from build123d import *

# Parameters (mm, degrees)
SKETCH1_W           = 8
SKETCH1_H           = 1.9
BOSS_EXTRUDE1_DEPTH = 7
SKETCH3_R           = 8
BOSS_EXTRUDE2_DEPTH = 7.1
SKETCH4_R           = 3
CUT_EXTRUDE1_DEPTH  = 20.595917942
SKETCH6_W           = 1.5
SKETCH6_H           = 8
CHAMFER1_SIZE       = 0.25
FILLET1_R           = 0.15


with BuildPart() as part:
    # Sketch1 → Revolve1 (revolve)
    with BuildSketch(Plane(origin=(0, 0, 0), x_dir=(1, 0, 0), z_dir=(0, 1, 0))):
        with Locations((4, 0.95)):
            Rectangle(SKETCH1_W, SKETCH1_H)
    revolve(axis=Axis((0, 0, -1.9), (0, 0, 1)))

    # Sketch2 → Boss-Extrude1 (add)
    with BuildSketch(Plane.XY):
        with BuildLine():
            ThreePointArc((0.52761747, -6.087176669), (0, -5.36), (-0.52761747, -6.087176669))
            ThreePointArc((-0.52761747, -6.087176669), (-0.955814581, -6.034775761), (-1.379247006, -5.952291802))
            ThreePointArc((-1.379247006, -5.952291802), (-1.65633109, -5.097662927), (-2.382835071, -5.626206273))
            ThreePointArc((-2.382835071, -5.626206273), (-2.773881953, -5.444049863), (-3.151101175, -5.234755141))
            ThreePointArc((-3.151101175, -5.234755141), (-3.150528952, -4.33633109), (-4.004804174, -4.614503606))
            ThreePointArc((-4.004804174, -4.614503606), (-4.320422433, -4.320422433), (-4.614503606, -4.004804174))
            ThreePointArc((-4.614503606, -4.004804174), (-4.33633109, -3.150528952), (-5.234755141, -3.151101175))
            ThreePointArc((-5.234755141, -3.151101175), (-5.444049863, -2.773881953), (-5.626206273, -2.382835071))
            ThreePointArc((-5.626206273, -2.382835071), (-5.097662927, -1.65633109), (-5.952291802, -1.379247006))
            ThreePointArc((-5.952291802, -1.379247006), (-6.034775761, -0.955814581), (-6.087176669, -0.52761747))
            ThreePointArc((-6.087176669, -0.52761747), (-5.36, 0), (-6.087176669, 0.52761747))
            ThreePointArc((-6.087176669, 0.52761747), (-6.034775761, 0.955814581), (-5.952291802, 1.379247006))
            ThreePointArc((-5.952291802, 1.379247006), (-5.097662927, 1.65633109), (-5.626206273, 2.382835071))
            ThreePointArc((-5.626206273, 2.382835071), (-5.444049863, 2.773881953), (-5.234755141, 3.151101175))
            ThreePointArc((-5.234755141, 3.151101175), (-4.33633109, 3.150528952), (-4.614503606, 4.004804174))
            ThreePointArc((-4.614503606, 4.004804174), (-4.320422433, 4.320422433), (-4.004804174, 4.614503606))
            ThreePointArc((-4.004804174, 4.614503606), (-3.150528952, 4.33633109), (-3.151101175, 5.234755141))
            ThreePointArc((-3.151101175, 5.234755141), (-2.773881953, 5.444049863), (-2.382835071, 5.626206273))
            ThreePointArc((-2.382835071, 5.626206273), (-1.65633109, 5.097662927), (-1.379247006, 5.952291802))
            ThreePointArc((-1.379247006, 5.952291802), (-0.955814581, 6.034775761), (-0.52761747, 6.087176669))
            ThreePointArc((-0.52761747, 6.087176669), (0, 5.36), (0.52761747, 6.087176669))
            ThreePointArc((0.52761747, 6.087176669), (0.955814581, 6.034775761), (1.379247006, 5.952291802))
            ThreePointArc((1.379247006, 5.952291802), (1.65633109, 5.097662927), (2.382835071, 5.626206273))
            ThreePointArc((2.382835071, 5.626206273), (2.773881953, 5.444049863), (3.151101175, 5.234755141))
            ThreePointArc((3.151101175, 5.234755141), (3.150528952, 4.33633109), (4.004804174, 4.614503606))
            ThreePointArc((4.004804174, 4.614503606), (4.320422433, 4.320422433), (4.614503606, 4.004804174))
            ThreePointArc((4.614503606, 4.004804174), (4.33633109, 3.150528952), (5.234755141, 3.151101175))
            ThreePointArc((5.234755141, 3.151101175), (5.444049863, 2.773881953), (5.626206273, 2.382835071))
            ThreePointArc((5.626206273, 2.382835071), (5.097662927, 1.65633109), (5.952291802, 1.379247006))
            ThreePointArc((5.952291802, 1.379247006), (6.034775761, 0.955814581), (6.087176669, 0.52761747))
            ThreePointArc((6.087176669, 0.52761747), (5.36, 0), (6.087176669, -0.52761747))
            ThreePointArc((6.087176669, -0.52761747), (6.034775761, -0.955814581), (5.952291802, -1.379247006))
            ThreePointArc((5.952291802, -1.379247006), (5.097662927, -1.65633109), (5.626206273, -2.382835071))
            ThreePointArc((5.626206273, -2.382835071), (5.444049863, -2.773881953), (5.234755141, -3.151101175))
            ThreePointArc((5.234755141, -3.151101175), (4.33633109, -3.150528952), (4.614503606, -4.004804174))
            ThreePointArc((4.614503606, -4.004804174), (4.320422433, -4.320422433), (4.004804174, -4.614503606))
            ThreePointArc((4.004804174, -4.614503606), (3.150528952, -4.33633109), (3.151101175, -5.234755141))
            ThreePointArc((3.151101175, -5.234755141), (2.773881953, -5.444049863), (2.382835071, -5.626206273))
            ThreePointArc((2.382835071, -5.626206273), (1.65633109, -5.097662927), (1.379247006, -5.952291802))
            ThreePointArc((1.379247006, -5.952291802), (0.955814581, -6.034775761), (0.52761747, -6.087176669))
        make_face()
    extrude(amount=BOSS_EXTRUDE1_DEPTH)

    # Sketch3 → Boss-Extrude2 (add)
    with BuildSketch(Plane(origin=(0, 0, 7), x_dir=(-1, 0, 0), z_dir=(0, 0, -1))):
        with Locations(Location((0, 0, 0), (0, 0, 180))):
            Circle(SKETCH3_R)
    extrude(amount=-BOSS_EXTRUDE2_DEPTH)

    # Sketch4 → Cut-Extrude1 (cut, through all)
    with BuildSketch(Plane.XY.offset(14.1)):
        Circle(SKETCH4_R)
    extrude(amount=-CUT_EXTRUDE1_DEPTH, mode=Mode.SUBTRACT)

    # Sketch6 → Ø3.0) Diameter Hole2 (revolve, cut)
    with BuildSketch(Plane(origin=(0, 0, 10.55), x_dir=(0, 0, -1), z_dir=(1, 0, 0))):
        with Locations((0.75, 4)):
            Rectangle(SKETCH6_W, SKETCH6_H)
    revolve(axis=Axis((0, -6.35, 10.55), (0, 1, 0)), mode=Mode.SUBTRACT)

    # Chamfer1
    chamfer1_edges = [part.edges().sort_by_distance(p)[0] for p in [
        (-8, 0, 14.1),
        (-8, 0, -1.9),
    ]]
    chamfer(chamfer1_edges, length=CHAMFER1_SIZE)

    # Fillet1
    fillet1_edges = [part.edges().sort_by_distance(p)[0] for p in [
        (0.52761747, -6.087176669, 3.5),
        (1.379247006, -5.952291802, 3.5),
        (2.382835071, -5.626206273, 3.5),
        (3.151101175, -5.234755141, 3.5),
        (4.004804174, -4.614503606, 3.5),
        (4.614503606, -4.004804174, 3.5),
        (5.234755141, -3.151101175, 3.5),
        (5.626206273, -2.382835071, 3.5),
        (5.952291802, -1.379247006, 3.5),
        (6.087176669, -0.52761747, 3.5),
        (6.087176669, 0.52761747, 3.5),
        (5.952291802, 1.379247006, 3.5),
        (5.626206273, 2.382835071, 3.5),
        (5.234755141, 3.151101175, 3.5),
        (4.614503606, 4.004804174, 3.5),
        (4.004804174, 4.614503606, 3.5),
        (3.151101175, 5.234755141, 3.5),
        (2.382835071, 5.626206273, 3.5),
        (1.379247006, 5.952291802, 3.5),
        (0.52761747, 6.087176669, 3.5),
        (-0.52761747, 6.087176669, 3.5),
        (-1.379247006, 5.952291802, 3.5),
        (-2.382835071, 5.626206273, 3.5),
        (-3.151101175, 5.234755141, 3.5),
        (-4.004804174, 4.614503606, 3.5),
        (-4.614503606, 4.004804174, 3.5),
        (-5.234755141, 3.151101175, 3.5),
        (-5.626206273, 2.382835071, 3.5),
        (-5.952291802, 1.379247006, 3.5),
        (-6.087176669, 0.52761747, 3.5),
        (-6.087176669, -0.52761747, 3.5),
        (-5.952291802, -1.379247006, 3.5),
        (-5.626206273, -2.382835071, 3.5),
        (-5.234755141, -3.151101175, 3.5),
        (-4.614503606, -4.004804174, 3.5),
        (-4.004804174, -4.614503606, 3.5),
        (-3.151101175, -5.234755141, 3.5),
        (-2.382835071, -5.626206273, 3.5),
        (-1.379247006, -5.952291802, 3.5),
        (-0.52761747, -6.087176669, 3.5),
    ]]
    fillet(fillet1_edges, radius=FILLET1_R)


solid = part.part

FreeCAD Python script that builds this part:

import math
import FreeCAD as App
import Part
import Sketcher
from FreeCAD import Vector
Q = App.Units.Quantity


def edges_at(feature, points):
    """Names of the edges that pass closest to the given points."""
    edges = feature.Shape.Edges
    near = lambda p: min(range(len(edges)), key=lambda i: edges[i].distToShape(Part.Vertex(*p))[0])
    return sorted({f"Edge{near(p) + 1}" for p in points})


def add_polygon(sketch, points):
    """Adds a closed chain of lines whose ends are joined by coincident constraints."""
    first, n = sketch.GeometryCount, len(points)
    for a, b in zip(points, points[1:] + points[:1]):
        sketch.addGeometry(Part.LineSegment(App.Vector(*a, 0), App.Vector(*b, 0)), False)
    for i in range(n):
        sketch.addConstraint(Sketcher.Constraint("Coincident", first + i, 2, first + (i + 1) % n, 1))

doc = App.newDocument("Part")
body = doc.addObject("PartDesign::Body", "Body")

# Sketch on XZ plane
sketch1 = body.newObject("Sketcher::SketchObject", "Sketch")
sketch1.AttachmentSupport = (doc.getObject("XZ_Plane"), [""])
sketch1.MapMode = "FlatFace"
add_polygon(sketch1, [(0, -1.9), (0, 0), (8, 0), (8, -1.9)])  # lines 0-3
sketch1.addConstraint([
    Sketcher.Constraint("Vertical", 0),
    Sketcher.Constraint("Horizontal", 1),
    Sketcher.Constraint("Vertical", 2),
    Sketcher.Constraint("Horizontal", 3),
    Sketcher.Constraint("Coincident", 0, 2, -1, 1),
    Sketcher.Constraint("DistanceX", 1, 1, 1, 2, Q("8 mm")),
    Sketcher.Constraint("DistanceY", 0, 1, 0, 2, Q("1.9 mm")),
])
revolution = body.newObject("PartDesign::Revolution", "Revolution")
revolution.Profile = sketch1
revolution.ReferenceAxis = (sketch1, ["V_Axis"])
revolution.Angle = 360

# Sketch on XY plane
sketch2 = body.newObject("Sketcher::SketchObject", "Sketch001")
sketch2.AttachmentSupport = (doc.getObject("XY_Plane"), [""])
sketch2.MapMode = "FlatFace"
sketch2.addGeometry([
    Part.ArcOfCircle(Part.Circle(Vector(0, -5.915, 0), Vector(0, 0, 1), 0.555), math.radians(-18.072985), math.radians(198.072985)),  # 0
    Part.ArcOfCircle(Part.Circle(Vector(0, 0, 0), Vector(0, 0, 1), 6.11), math.radians(-85.046162), math.radians(-76.953838)),  # 1
    Part.ArcOfCircle(Part.Circle(Vector(1.827836, -5.625499, 0), Vector(0, 0, 1), 0.555), math.radians(-0.072985), math.radians(216.072985)),  # 2
    Part.ArcOfCircle(Part.Circle(Vector(0, 0, 0), Vector(0, 0, 1), 6.11), math.radians(-67.046162), math.radians(-58.953838)),  # 3
    Part.ArcOfCircle(Part.Circle(Vector(3.47675, -4.785336, 0), Vector(0, 0, 1), 0.555), math.radians(17.927015), math.radians(234.072985)),  # 4
    Part.ArcOfCircle(Part.Circle(Vector(0, 0, 0), Vector(0, 0, 1), 6.11), math.radians(-49.046162), math.radians(-40.953838)),  # 5
    Part.ArcOfCircle(Part.Circle(Vector(4.785336, -3.47675, 0), Vector(0, 0, 1), 0.555), math.radians(35.927015), math.radians(252.072985)),  # 6
    Part.ArcOfCircle(Part.Circle(Vector(0, 0, 0), Vector(0, 0, 1), 6.11), math.radians(-31.046162), math.radians(-22.953838)),  # 7
    Part.ArcOfCircle(Part.Circle(Vector(5.625499, -1.827836, 0), Vector(0, 0, 1), 0.555), math.radians(53.927015), math.radians(270.072985)),  # 8
    Part.ArcOfCircle(Part.Circle(Vector(0, 0, 0), Vector(0, 0, 1), 6.11), math.radians(-13.046162), math.radians(-4.953838)),  # 9
    Part.ArcOfCircle(Part.Circle(Vector(5.915, 0, 0), Vector(0, 0, 1), 0.555), math.radians(71.927015), math.radians(288.072985)),  # 10
    Part.ArcOfCircle(Part.Circle(Vector(0, 0, 0), Vector(0, 0, 1), 6.11), math.radians(4.953838), math.radians(13.046162)),  # 11
    Part.ArcOfCircle(Part.Circle(Vector(5.625499, 1.827836, 0), Vector(0, 0, 1), 0.555), math.radians(89.927015), math.radians(306.072985)),  # 12
    Part.ArcOfCircle(Part.Circle(Vector(0, 0, 0), Vector(0, 0, 1), 6.11), math.radians(22.953838), math.radians(31.046162)),  # 13
    Part.ArcOfCircle(Part.Circle(Vector(4.785336, 3.47675, 0), Vector(0, 0, 1), 0.555), math.radians(107.927015), math.radians(324.072985)),  # 14
    Part.ArcOfCircle(Part.Circle(Vector(0, 0, 0), Vector(0, 0, 1), 6.11), math.radians(40.953838), math.radians(49.046162)),  # 15
    Part.ArcOfCircle(Part.Circle(Vector(3.47675, 4.785336, 0), Vector(0, 0, 1), 0.555), math.radians(125.927015), math.radians(342.072985)),  # 16
    Part.ArcOfCircle(Part.Circle(Vector(0, 0, 0), Vector(0, 0, 1), 6.11), math.radians(58.953838), math.radians(67.046162)),  # 17
    Part.ArcOfCircle(Part.Circle(Vector(1.827836, 5.625499, 0), Vector(0, 0, 1), 0.555), math.radians(143.927015), math.radians(360.072985)),  # 18
    Part.ArcOfCircle(Part.Circle(Vector(0, 0, 0), Vector(0, 0, 1), 6.11), math.radians(76.953838), math.radians(85.046162)),  # 19
    Part.ArcOfCircle(Part.Circle(Vector(0, 5.915, 0), Vector(0, 0, 1), 0.555), math.radians(161.927015), math.radians(378.072985)),  # 20
    Part.ArcOfCircle(Part.Circle(Vector(0, 0, 0), Vector(0, 0, 1), 6.11), math.radians(94.953838), math.radians(103.046162)),  # 21
    Part.ArcOfCircle(Part.Circle(Vector(-1.827836, 5.625499, 0), Vector(0, 0, 1), 0.555), math.radians(179.927015), math.radians(396.072985)),  # 22
    Part.ArcOfCircle(Part.Circle(Vector(0, 0, 0), Vector(0, 0, 1), 6.11), math.radians(112.953838), math.radians(121.046162)),  # 23
    Part.ArcOfCircle(Part.Circle(Vector(-3.47675, 4.785336, 0), Vector(0, 0, 1), 0.555), math.radians(-162.072985), math.radians(54.072985)),  # 24
    Part.ArcOfCircle(Part.Circle(Vector(0, 0, 0), Vector(0, 0, 1), 6.11), math.radians(130.953838), math.radians(139.046162)),  # 25
    Part.ArcOfCircle(Part.Circle(Vector(-4.785336, 3.47675, 0), Vector(0, 0, 1), 0.555), math.radians(-144.072985), math.radians(72.072985)),  # 26
    Part.ArcOfCircle(Part.Circle(Vector(0, 0, 0), Vector(0, 0, 1), 6.11), math.radians(148.953838), math.radians(157.046162)),  # 27
    Part.ArcOfCircle(Part.Circle(Vector(-5.625499, 1.827836, 0), Vector(0, 0, 1), 0.555), math.radians(-126.072985), math.radians(90.072985)),  # 28
    Part.ArcOfCircle(Part.Circle(Vector(0, 0, 0), Vector(0, 0, 1), 6.11), math.radians(166.953838), math.radians(175.046162)),  # 29
    Part.ArcOfCircle(Part.Circle(Vector(-5.915, 0, 0), Vector(0, 0, 1), 0.555), math.radians(-108.072985), math.radians(108.072985)),  # 30
    Part.ArcOfCircle(Part.Circle(Vector(0, 0, 0), Vector(0, 0, 1), 6.11), math.radians(-175.046162), math.radians(-166.953838)),  # 31
    Part.ArcOfCircle(Part.Circle(Vector(-5.625499, -1.827836, 0), Vector(0, 0, 1), 0.555), math.radians(-90.072985), math.radians(126.072985)),  # 32
    Part.ArcOfCircle(Part.Circle(Vector(0, 0, 0), Vector(0, 0, 1), 6.11), math.radians(-157.046162), math.radians(-148.953838)),  # 33
    Part.ArcOfCircle(Part.Circle(Vector(-4.785336, -3.47675, 0), Vector(0, 0, 1), 0.555), math.radians(-72.072985), math.radians(144.072985)),  # 34
    Part.ArcOfCircle(Part.Circle(Vector(0, 0, 0), Vector(0, 0, 1), 6.11), math.radians(-139.046162), math.radians(-130.953838)),  # 35
    Part.ArcOfCircle(Part.Circle(Vector(-3.47675, -4.785336, 0), Vector(0, 0, 1), 0.555), math.radians(-54.072985), math.radians(162.072985)),  # 36
    Part.ArcOfCircle(Part.Circle(Vector(0, 0, 0), Vector(0, 0, 1), 6.11), math.radians(-121.046162), math.radians(-112.953838)),  # 37
    Part.ArcOfCircle(Part.Circle(Vector(-1.827836, -5.625499, 0), Vector(0, 0, 1), 0.555), math.radians(-36.072985), math.radians(180.072985)),  # 38
    Part.ArcOfCircle(Part.Circle(Vector(0, 0, 0), Vector(0, 0, 1), 6.11), math.radians(-103.046162), math.radians(-94.953838)),  # 39
], False)
sketch2.addConstraint([
    Sketcher.Constraint("Coincident", 0, 1, 1, 1),
    Sketcher.Constraint("Coincident", 1, 2, 2, 2),
    Sketcher.Constraint("Coincident", 2, 1, 3, 1),
    Sketcher.Constraint("Coincident", 3, 2, 4, 2),
    Sketcher.Constraint("Coincident", 4, 1, 5, 1),
    Sketcher.Constraint("Coincident", 5, 2, 6, 2),
    Sketcher.Constraint("Coincident", 6, 1, 7, 1),
    Sketcher.Constraint("Coincident", 7, 2, 8, 2),
    Sketcher.Constraint("Coincident", 8, 1, 9, 1),
    Sketcher.Constraint("Coincident", 9, 2, 10, 2),
    Sketcher.Constraint("Coincident", 10, 1, 11, 1),
    Sketcher.Constraint("Coincident", 11, 2, 12, 2),
    Sketcher.Constraint("Coincident", 12, 1, 13, 1),
    Sketcher.Constraint("Coincident", 13, 2, 14, 2),
    Sketcher.Constraint("Coincident", 14, 1, 15, 1),
    Sketcher.Constraint("Coincident", 15, 2, 16, 2),
    Sketcher.Constraint("Coincident", 16, 1, 17, 1),
    Sketcher.Constraint("Coincident", 17, 2, 18, 2),
    Sketcher.Constraint("Coincident", 18, 1, 19, 1),
    Sketcher.Constraint("Coincident", 19, 2, 20, 2),
    Sketcher.Constraint("Coincident", 20, 1, 21, 1),
    Sketcher.Constraint("Coincident", 21, 2, 22, 2),
    Sketcher.Constraint("Coincident", 22, 1, 23, 1),
    Sketcher.Constraint("Coincident", 23, 2, 24, 2),
    Sketcher.Constraint("Coincident", 24, 1, 25, 1),
    Sketcher.Constraint("Coincident", 25, 2, 26, 2),
    Sketcher.Constraint("Coincident", 26, 1, 27, 1),
    Sketcher.Constraint("Coincident", 27, 2, 28, 2),
    Sketcher.Constraint("Coincident", 28, 1, 29, 1),
    Sketcher.Constraint("Coincident", 29, 2, 30, 2),
    Sketcher.Constraint("Coincident", 30, 1, 31, 1),
    Sketcher.Constraint("Coincident", 31, 2, 32, 2),
    Sketcher.Constraint("Coincident", 32, 1, 33, 1),
    Sketcher.Constraint("Coincident", 33, 2, 34, 2),
    Sketcher.Constraint("Coincident", 34, 1, 35, 1),
    Sketcher.Constraint("Coincident", 35, 2, 36, 2),
    Sketcher.Constraint("Coincident", 36, 1, 37, 1),
    Sketcher.Constraint("Coincident", 37, 2, 38, 2),
    Sketcher.Constraint("Coincident", 38, 1, 39, 1),
    Sketcher.Constraint("Coincident", 39, 2, 0, 2),
    Sketcher.Constraint("Coincident", 1, 3, -1, 1),
    Sketcher.Constraint("Coincident", 3, 3, -1, 1),
    Sketcher.Constraint("Coincident", 5, 3, -1, 1),
    Sketcher.Constraint("Coincident", 7, 3, -1, 1),
    Sketcher.Constraint("Coincident", 9, 3, -1, 1),
    Sketcher.Constraint("Coincident", 11, 3, -1, 1),
    Sketcher.Constraint("Coincident", 13, 3, -1, 1),
    Sketcher.Constraint("Coincident", 15, 3, -1, 1),
    Sketcher.Constraint("Coincident", 17, 3, -1, 1),
    Sketcher.Constraint("Coincident", 19, 3, -1, 1),
    Sketcher.Constraint("Coincident", 21, 3, -1, 1),
    Sketcher.Constraint("Coincident", 23, 3, -1, 1),
    Sketcher.Constraint("Coincident", 25, 3, -1, 1),
    Sketcher.Constraint("Coincident", 27, 3, -1, 1),
    Sketcher.Constraint("Coincident", 29, 3, -1, 1),
    Sketcher.Constraint("Coincident", 31, 3, -1, 1),
    Sketcher.Constraint("Coincident", 33, 3, -1, 1),
    Sketcher.Constraint("Coincident", 35, 3, -1, 1),
    Sketcher.Constraint("Coincident", 37, 3, -1, 1),
    Sketcher.Constraint("Coincident", 39, 3, -1, 1),
    Sketcher.Constraint("Equal", 0, 2),
    Sketcher.Constraint("Equal", 1, 3),
    Sketcher.Constraint("Equal", 2, 4),
    Sketcher.Constraint("Equal", 3, 5),
    Sketcher.Constraint("Equal", 4, 6),
    Sketcher.Constraint("Equal", 5, 7),
    Sketcher.Constraint("Equal", 6, 8),
    Sketcher.Constraint("Equal", 7, 9),
    Sketcher.Constraint("Equal", 8, 10),
    Sketcher.Constraint("Equal", 9, 11),
    Sketcher.Constraint("Equal", 10, 12),
    Sketcher.Constraint("Equal", 11, 13),
    Sketcher.Constraint("Equal", 12, 14),
    Sketcher.Constraint("Equal", 13, 15),
    Sketcher.Constraint("Equal", 14, 16),
    Sketcher.Constraint("Equal", 15, 17),
    Sketcher.Constraint("Equal", 16, 18),
    Sketcher.Constraint("Equal", 17, 19),
    Sketcher.Constraint("Equal", 18, 20),
    Sketcher.Constraint("Equal", 19, 21),
    Sketcher.Constraint("Equal", 20, 22),
    Sketcher.Constraint("Equal", 21, 23),
    Sketcher.Constraint("Equal", 22, 24),
    Sketcher.Constraint("Equal", 23, 25),
    Sketcher.Constraint("Equal", 24, 26),
    Sketcher.Constraint("Equal", 25, 27),
    Sketcher.Constraint("Equal", 26, 28),
    Sketcher.Constraint("Equal", 27, 29),
    Sketcher.Constraint("Equal", 28, 30),
    Sketcher.Constraint("Equal", 29, 31),
    Sketcher.Constraint("Equal", 30, 32),
    Sketcher.Constraint("Equal", 31, 33),
    Sketcher.Constraint("Equal", 32, 34),
    Sketcher.Constraint("Equal", 33, 35),
    Sketcher.Constraint("Equal", 34, 36),
    Sketcher.Constraint("Equal", 35, 37),
    Sketcher.Constraint("Equal", 36, 38),
    Sketcher.Constraint("Equal", 37, 39),
    Sketcher.Constraint("Symmetric", 0, 3, 20, 3, -1, 1),
    Sketcher.Constraint("Symmetric", 2, 3, 22, 3, -1, 1),
    Sketcher.Constraint("Symmetric", 4, 3, 24, 3, -1, 1),
    Sketcher.Constraint("Symmetric", 6, 3, 26, 3, -1, 1),
    Sketcher.Constraint("Symmetric", 8, 3, 28, 3, -1, 1),
    Sketcher.Constraint("Symmetric", 10, 3, 30, 3, -1, 1),
    Sketcher.Constraint("Symmetric", 12, 3, 32, 3, -1, 1),
    Sketcher.Constraint("Symmetric", 14, 3, 34, 3, -1, 1),
    Sketcher.Constraint("Symmetric", 16, 3, 36, 3, -1, 1),
    Sketcher.Constraint("Symmetric", 18, 3, 38, 3, -1, 1),
    Sketcher.Constraint("Symmetric", 18, 3, 22, 3, -2),
    Sketcher.Constraint("Symmetric", 16, 3, 24, 3, -2),
    Sketcher.Constraint("Symmetric", 14, 3, 26, 3, -2),
    Sketcher.Constraint("Symmetric", 12, 3, 28, 3, -2),
    Sketcher.Constraint("PointOnObject", 0, 3, -2),
    Sketcher.Constraint("PointOnObject", 10, 3, -1),
    Sketcher.Constraint("Radius", 1, Q("6.11 mm")),
    Sketcher.Constraint("Radius", 0, Q("0.555 mm")),
    Sketcher.Constraint("DistanceY", 0, 3, -1, 1, Q("5.915 mm")),
    Sketcher.Constraint("DistanceX", -1, 1, 10, 3, Q("5.915 mm")),
    Sketcher.Constraint("DistanceY", 2, 3, -1, 1, Q("5.625499 mm")),
    Sketcher.Constraint("DistanceX", -1, 1, 8, 3, Q("5.625499 mm")),
    Sketcher.Constraint("DistanceX", -1, 1, 3, 2, Q("3.151101 mm")),
    Sketcher.Constraint("DistanceY", 6, 1, -1, 1, Q("3.151101 mm")),
    Sketcher.Constraint("DistanceX", -1, 1, 4, 3, Q("3.47675 mm")),
    Sketcher.Constraint("DistanceY", 6, 3, -1, 1, Q("3.47675 mm")),
    Sketcher.Constraint("DistanceY", 1, 2, -1, 1, Q("5.952292 mm")),
    Sketcher.Constraint("DistanceX", -1, 1, 8, 1, Q("5.952292 mm")),
])
pad1 = body.newObject("PartDesign::Pad", "Pad")
pad1.Profile = sketch2
pad1.Length = 7

# Sketch on XY plane
sketch3 = body.newObject("Sketcher::SketchObject", "Sketch002")
sketch3.AttachmentSupport = (doc.getObject("XY_Plane"), [""])
sketch3.MapMode = "FlatFace"
sketch3.AttachmentOffset = App.Placement(Vector(0, 0, 7), App.Rotation())
sketch3.addGeometry(Part.Circle(Vector(0, 0, 0), Vector(0, 0, 1), 8), False)
sketch3.addConstraint([
    Sketcher.Constraint("Coincident", 0, 3, -1, 1),
    Sketcher.Constraint("Diameter", 0, Q("16 mm")),
])
pad2 = body.newObject("PartDesign::Pad", "Pad001")
pad2.Profile = sketch3
pad2.Length = 7.1

# Sketch on XY plane
sketch4 = body.newObject("Sketcher::SketchObject", "Sketch003")
sketch4.AttachmentSupport = (doc.getObject("XY_Plane"), [""])
sketch4.MapMode = "FlatFace"
sketch4.AttachmentOffset = App.Placement(Vector(0, 0, 14.1), App.Rotation())
sketch4.addGeometry(Part.Circle(Vector(0, 0, 0), Vector(0, 0, 1), 3), False)
sketch4.addConstraint([
    Sketcher.Constraint("Coincident", 0, 3, -1, 1),
    Sketcher.Constraint("Diameter", 0, Q("6 mm")),
])
pocket1 = body.newObject("PartDesign::Pocket", "Pocket")
pocket1.Profile = sketch4
pocket1.Type = "ThroughAll"

# Sketch on YZ plane
sketch5 = body.newObject("Sketcher::SketchObject", "Sketch004")
sketch5.AttachmentSupport = (doc.getObject("YZ_Plane"), [""])
sketch5.MapMode = "FlatFace"
add_polygon(sketch5, [(8, 10.55), (0, 10.55), (0, 9.05), (8, 9.05)])  # lines 0-3
sketch5.addGeometry(Part.LineSegment(Vector(0, 10.55, 0), Vector(8, 10.55, 0)), True)  # axis
sketch5.addConstraint([
    Sketcher.Constraint("Horizontal", 0),
    Sketcher.Constraint("Vertical", 1),
    Sketcher.Constraint("Horizontal", 2),
    Sketcher.Constraint("Vertical", 3),
    Sketcher.Constraint("Horizontal", 4),
    Sketcher.Constraint("Coincident", 4, 1, 0, 2),
    Sketcher.Constraint("PointOnObject", 0, 2, -2),
    Sketcher.Constraint("Vertical", 2, 2, 4, 2),
    Sketcher.Constraint("DistanceX", 0, 2, 0, 1, Q("8 mm")),
    Sketcher.Constraint("DistanceY", 1, 2, 1, 1, Q("1.5 mm")),
    Sketcher.Constraint("DistanceY", -1, 1, 0, 2, Q("10.55 mm")),
])
groove = body.newObject("PartDesign::Groove", "Groove")
groove.Profile = sketch5
groove.ReferenceAxis = (sketch5, ["Axis0"])
groove.Angle = 360
doc.recompute()

chamfer = body.newObject("PartDesign::Chamfer", "Chamfer")
chamfer.Base = (groove, edges_at(groove, [(-8, 0, 14.1), (-8, 0, -1.9)]))
chamfer.Size = 0.25
doc.recompute()

fillet = body.newObject("PartDesign::Fillet", "Fillet")
fillet.Base = (chamfer, edges_at(chamfer, [
    (0.528, -6.087, 3.5),
    (1.379, -5.952, 3.5),
    (2.383, -5.626, 3.5),
    (3.151, -5.235, 3.5),
    (4.005, -4.615, 3.5),
    (4.615, -4.005, 3.5),
    (5.235, -3.151, 3.5),
    (5.626, -2.383, 3.5),
    (5.952, -1.379, 3.5),
    (6.087, -0.528, 3.5),
    (6.087, 0.528, 3.5),
    (5.952, 1.379, 3.5),
    (5.626, 2.383, 3.5),
    (5.235, 3.151, 3.5),
    (4.615, 4.005, 3.5),
    (4.005, 4.615, 3.5),
    (3.151, 5.235, 3.5),
    (2.383, 5.626, 3.5),
    (1.379, 5.952, 3.5),
    (0.528, 6.087, 3.5),
    (-0.528, 6.087, 3.5),
    (-1.379, 5.952, 3.5),
    (-2.383, 5.626, 3.5),
    (-3.151, 5.235, 3.5),
    (-4.005, 4.615, 3.5),
    (-4.615, 4.005, 3.5),
    (-5.235, 3.151, 3.5),
    (-5.626, 2.383, 3.5),
    (-5.952, 1.379, 3.5),
    (-6.087, 0.528, 3.5),
    (-6.087, -0.528, 3.5),
    (-5.952, -1.379, 3.5),
    (-5.626, -2.383, 3.5),
    (-5.235, -3.151, 3.5),
    (-4.615, -4.005, 3.5),
    (-4.005, -4.615, 3.5),
    (-3.151, -5.235, 3.5),
    (-2.383, -5.626, 3.5),
    (-1.379, -5.952, 3.5),
    (-0.528, -6.087, 3.5),
]))
fillet.Radius = 0.15

doc.recompute()
